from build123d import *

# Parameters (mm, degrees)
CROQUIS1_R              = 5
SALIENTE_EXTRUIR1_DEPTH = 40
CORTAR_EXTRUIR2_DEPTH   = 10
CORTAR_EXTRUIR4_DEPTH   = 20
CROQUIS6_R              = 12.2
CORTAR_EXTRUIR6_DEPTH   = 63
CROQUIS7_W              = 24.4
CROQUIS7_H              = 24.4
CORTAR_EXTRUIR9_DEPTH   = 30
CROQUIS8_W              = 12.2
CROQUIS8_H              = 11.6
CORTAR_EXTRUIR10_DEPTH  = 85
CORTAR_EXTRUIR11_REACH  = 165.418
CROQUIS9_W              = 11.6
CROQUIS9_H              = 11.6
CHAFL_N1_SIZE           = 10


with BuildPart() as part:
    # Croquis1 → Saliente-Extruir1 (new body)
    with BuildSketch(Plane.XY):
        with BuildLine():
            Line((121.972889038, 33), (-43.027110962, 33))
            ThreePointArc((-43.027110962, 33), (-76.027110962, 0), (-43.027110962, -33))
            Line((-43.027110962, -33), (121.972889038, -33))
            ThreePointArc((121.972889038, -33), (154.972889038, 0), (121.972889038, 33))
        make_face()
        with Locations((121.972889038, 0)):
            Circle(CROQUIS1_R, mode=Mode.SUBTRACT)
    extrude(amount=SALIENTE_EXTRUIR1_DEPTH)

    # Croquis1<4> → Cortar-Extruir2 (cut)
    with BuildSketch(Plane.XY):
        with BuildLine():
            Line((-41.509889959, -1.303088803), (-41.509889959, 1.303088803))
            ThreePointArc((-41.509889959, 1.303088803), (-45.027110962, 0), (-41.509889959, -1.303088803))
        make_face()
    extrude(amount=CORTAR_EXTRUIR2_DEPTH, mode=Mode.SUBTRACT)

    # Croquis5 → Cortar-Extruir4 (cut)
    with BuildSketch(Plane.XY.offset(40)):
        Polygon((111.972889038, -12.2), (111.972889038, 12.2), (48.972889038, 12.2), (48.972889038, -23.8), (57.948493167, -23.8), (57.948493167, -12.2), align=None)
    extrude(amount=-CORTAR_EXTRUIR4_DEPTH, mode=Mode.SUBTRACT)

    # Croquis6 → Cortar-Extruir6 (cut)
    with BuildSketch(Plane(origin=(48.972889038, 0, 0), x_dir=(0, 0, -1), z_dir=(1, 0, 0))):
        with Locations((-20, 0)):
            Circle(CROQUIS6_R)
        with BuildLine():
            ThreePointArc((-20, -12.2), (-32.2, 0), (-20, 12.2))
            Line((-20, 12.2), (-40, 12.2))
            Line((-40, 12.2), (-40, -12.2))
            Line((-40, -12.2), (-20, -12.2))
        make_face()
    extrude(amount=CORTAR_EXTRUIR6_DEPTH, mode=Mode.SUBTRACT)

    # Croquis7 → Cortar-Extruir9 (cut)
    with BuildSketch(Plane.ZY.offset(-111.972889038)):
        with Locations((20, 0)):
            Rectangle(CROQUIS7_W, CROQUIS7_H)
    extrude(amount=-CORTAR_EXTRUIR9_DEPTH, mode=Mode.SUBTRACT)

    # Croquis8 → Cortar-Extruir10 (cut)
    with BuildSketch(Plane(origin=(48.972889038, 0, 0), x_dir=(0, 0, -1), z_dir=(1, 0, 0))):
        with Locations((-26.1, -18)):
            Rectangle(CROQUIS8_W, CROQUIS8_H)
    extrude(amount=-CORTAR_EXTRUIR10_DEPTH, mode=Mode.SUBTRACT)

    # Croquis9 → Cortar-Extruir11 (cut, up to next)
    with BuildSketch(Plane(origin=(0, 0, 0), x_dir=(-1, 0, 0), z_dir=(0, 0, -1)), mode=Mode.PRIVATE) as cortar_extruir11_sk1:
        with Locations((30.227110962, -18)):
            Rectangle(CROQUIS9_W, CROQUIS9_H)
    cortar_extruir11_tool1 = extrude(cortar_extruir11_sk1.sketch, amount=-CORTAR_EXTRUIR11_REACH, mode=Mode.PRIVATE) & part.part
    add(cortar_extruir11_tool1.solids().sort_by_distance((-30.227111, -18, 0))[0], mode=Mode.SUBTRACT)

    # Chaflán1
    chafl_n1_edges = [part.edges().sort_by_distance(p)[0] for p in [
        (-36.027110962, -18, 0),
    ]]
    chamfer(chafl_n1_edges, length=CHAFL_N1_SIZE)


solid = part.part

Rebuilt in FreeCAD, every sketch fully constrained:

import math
import FreeCAD as App
import Part
import Sketcher


def edges_at(feature, points):
    """Names of the edges that pass closest to the given points."""
    edges = feature.Shape.Edges
    near = lambda p: min(range(len(edges)), key=lambda i: edges[i].distToShape(Part.Vertex(*p))[0])
    return sorted({f"Edge{near(p) + 1}" for p in points})


def add_polygon(sketch, points):
    """Adds a closed chain of lines whose ends are joined by coincident constraints."""
    first, n = sketch.GeometryCount, len(points)
    for a, b in zip(points, points[1:] + points[:1]):
        sketch.addGeometry(Part.LineSegment(App.Vector(*a, 0), App.Vector(*b, 0)), False)
    for i in range(n):
        sketch.addConstraint(Sketcher.Constraint("Coincident", first + i, 2, first + (i + 1) % n, 1))

doc = App.newDocument("Part")
params = doc.addObject("Spreadsheet::Sheet", "Params")
for row, (alias, value) in enumerate([
    ("sketch1_diameter", "10 mm"),
    ("sketch1_radius", "33 mm"),
    ("sketch1_width", "165 mm"),
    ("pad1_length", "40 mm"),
    ("sketch2_radius", "2 mm"),
    ("pocket1_length", "10 mm"),
    ("sketch3_width", "63 mm"),
    ("sketch3_height", "36 mm"),
    ("sketch3_height2", "24.4 mm"),
    ("pocket2_length", "20 mm"),
    ("sketch4_radius", "12.2 mm"),
    ("sketch4_height", "20 mm"),
    ("pocket3_length", "63 mm"),
    ("sketch5_width", "24.4 mm"),
    ("pocket4_length", "30 mm"),
    ("sketch6_width", "11.6 mm"),
    ("sketch6_height", "12.2 mm"),
    ("pocket5_length", "85 mm"),
    ("sketch7_width", "11.6 mm"),
    ("chamfer_size", "10 mm"),
], start=1):
    params.set(f"A{row}", alias)
    params.set(f"B{row}", "=" + value)
    params.setAlias(f"B{row}", alias)

body = doc.addObject("PartDesign::Body", "Body")

# Sketch on XY plane
sketch1 = doc.addObject("Sketcher::SketchObject", "Sketch")
body.addObject(sketch1)
sketch1.AttachmentSupport = (doc.XY_Plane, [""])
sketch1.MapMode = "FlatFace"
sketch1.addGeometry([
    Part.LineSegment(App.Vector(122, 33, 0), App.Vector(-43, 33, 0)),  # 0
    Part.ArcOfCircle(Part.Circle(App.Vector(-43, 0, 0), App.Vector(0, 0, 1), 33), math.radians(90), math.radians(270)),  # 1
    Part.LineSegment(App.Vector(-43, -33, 0), App.Vector(122, -33, 0)),  # 2
    Part.ArcOfCircle(Part.Circle(App.Vector(122, 0, 0), App.Vector(0, 0, 1), 33), math.radians(-90), math.radians(90)),  # 3
    Part.Circle(App.Vector(122, 0, 0), App.Vector(0, 0, 1), 5),  # 4
], False)
sketch1.addConstraint([
    Sketcher.Constraint("Tangent", 0, 2, 1, 1),
    Sketcher.Constraint("Tangent", 1, 2, 2, 1),
    Sketcher.Constraint("Tangent", 2, 2, 3, 1),
    Sketcher.Constraint("Tangent", 3, 2, 0, 1),
    Sketcher.Constraint("Horizontal", 0),
    Sketcher.Constraint("Horizontal", 2),
    Sketcher.Constraint("Coincident", 4, 3, 3, 3),
    Sketcher.Constraint("PointOnObject", 1, 3, -1),
    Sketcher.Constraint("Diameter", 4, 10.0),
    Sketcher.Constraint("Radius", 1, 33.0),
    Sketcher.Constraint("DistanceX", 0, 2, 0, 1, 165.0),
    Sketcher.Constraint("DistanceX", 1, 3, -1, 1, 43.027111),
])
sketch1.setExpression("Constraints[8]", "Params.sketch1_diameter")
sketch1.setExpression("Constraints[9]", "Params.sketch1_radius")
sketch1.setExpression("Constraints[10]", "Params.sketch1_width")
pad1 = doc.addObject("PartDesign::Pad", "Pad")
body.addObject(pad1)
pad1.Profile = sketch1
pad1.setExpression("Length", "Params.pad1_length")

# Sketch on XY plane
sketch2 = doc.addObject("Sketcher::SketchObject", "Sketch001")
body.addObject(sketch2)
sketch2.AttachmentSupport = (doc.XY_Plane, [""])
sketch2.MapMode = "FlatFace"
sketch2.addGeometry([
    Part.LineSegment(App.Vector(-41.5, -1.3, 0), App.Vector(-41.5, 1.3, 0)),
    Part.ArcOfCircle(Part.Circle(App.Vector(-43, 0, 0), App.Vector(0, 0, 1), 2), math.radians(41), math.radians(319)),
], False)
sketch2.addConstraint([
    Sketcher.Constraint("Coincident", 0, 1, 1, 2),
    Sketcher.Constraint("Coincident", 1, 1, 0, 2),
    Sketcher.Constraint("Vertical", 0),
    Sketcher.Constraint("PointOnObject", 1, 3, -1),
    Sketcher.Constraint("Radius", 1, 2.0),
    Sketcher.Constraint("DistanceY", 0, 1, 0, 2, 2.606178),
    Sketcher.Constraint("DistanceX", 1, 3, -1, 1, 43.027111),
])
sketch2.setExpression("Constraints[4]", "Params.sketch2_radius")
pocket1 = doc.addObject("PartDesign::Pocket", "Pocket")
body.addObject(pocket1)
pocket1.Profile = sketch2
pocket1.setExpression("Length", "Params.pocket1_length")
pocket1.Reversed = True

# Sketch on XY plane
sketch3 = doc.addObject("Sketcher::SketchObject", "Sketch002")
body.addObject(sketch3)
sketch3.AttachmentSupport = (doc.XY_Plane, [""])
sketch3.MapMode = "FlatFace"
sketch3.AttachmentOffset = App.Placement(App.Vector(0, 0, 40), App.Rotation())
add_polygon(sketch3, [(112, -12), (112, 12), (49, 12), (49, -24), (58, -24), (58, -12)])  # lines 0-5
sketch3.addConstraint([
    Sketcher.Constraint("Vertical", 0),
    Sketcher.Constraint("Horizontal", 1),
    Sketcher.Constraint("Vertical", 2),
    Sketcher.Constraint("Horizontal", 3),
    Sketcher.Constraint("Vertical", 4),
    Sketcher.Constraint("Horizontal", 5),
    Sketcher.Constraint("DistanceX", 1, 2, 1, 1, 63.0),
    Sketcher.Constraint("DistanceY", 2, 2, 2, 1, 36.0),
    Sketcher.Constraint("DistanceY", 0, 1, 0, 2, 24.4),
    Sketcher.Constraint("DistanceY", -1, 1, 0, 2, 12.2),
    Sketcher.Constraint("DistanceX", 3, 1, 3, 2, 8.975604),
    Sketcher.Constraint("DistanceX", -1, 1, 0, 2, 111.972889),
])
sketch3.setExpression("Constraints[12]", "Params.sketch3_width")
sketch3.setExpression("Constraints[13]", "Params.sketch3_height")
sketch3.setExpression("Constraints[14]", "Params.sketch3_height2")
pocket2 = doc.addObject("PartDesign::Pocket", "Pocket001")
body.addObject(pocket2)
pocket2.Profile = sketch3
pocket2.setExpression("Length", "Params.pocket2_length")

# Sketch on YZ plane
sketch4 = doc.addObject("Sketcher::SketchObject", "Sketch003")
body.addObject(sketch4)
sketch4.AttachmentSupport = (doc.YZ_Plane, [""])
sketch4.MapMode = "FlatFace"
sketch4.AttachmentOffset = App.Placement(App.Vector(0, 0, 48.972889), App.Rotation())
sketch4.addGeometry([
    Part.LineSegment(App.Vector(12, 20, 0), App.Vector(12, 40, 0)),
    Part.LineSegment(App.Vector(12, 40, 0), App.Vector(-12, 40, 0)),
    Part.LineSegment(App.Vector(-12, 40, 0), App.Vector(-12, 20, 0)),
    Part.ArcOfCircle(Part.Circle(App.Vector(0, 20, 0), App.Vector(0, 0, 1), 12), math.radians(180), math.radians(360)),
], False)
sketch4.addConstraint([
    Sketcher.Constraint("Coincident", 0, 2, 1, 1),
    Sketcher.Constraint("Coincident", 1, 2, 2, 1),
    Sketcher.Constraint("Tangent", 2, 2, 3, 1),
    Sketcher.Constraint("Tangent", 3, 2, 0, 1),
    Sketcher.Constraint("Vertical", 0),
    Sketcher.Constraint("Horizontal", 1),
    Sketcher.Constraint("Vertical", 2),
    Sketcher.Constraint("PointOnObject", 3, 3, -2),
    Sketcher.Constraint("Radius", 3, 12.2),
    Sketcher.Constraint("DistanceY", 0, 1, 0, 2, 20.0),
    Sketcher.Constraint("DistanceY", -1, 1, 3, 3, 20.0),
])
sketch4.setExpression("Constraints[8]", "Params.sketch4_radius")
sketch4.setExpression("Constraints[9]", "Params.sketch4_height")
pocket3 = doc.addObject("PartDesign::Pocket", "Pocket002")
body.addObject(pocket3)
pocket3.Profile = sketch4
pocket3.setExpression("Length", "Params.pocket3_length")
pocket3.Reversed = True

# Sketch on YZ plane
sketch5 = doc.addObject("Sketcher::SketchObject", "Sketch004")
body.addObject(sketch5)
sketch5.AttachmentSupport = (doc.YZ_Plane, [""])
sketch5.MapMode = "FlatFace"
sketch5.AttachmentOffset = App.Placement(App.Vector(0, 0, 111.972889), App.Rotation())
add_polygon(sketch5, [(12, 8), (-12, 8), (-12, 32), (12, 32)])  # lines 0-3
sketch5.addConstraint([
    Sketcher.Constraint("Horizontal", 0),
    Sketcher.Constraint("Vertical", 1),
    Sketcher.Constraint("Horizontal", 2),
    Sketcher.Constraint("Vertical", 3),
    Sketcher.Constraint("Equal", 2, 1),
    Sketcher.Constraint("DistanceX", 0, 2, 0, 1, 24.4),
    Sketcher.Constraint("DistanceX", 0, 2, -1, 1, 12.2),
    Sketcher.Constraint("DistanceY", -1, 1, 0, 2, 7.8),
])
sketch5.setExpression("Constraints[9]", "Params.sketch5_width")
pocket4 = doc.addObject("PartDesign::Pocket", "Pocket003")
body.addObject(pocket4)
pocket4.Profile = sketch5
pocket4.setExpression("Length", "Params.pocket4_length")
pocket4.Reversed = True

# Sketch on YZ plane
sketch6 = doc.addObject("Sketcher::SketchObject", "Sketch005")
body.addObject(sketch6)
sketch6.AttachmentSupport = (doc.YZ_Plane, [""])
sketch6.MapMode = "FlatFace"
sketch6.AttachmentOffset = App.Placement(App.Vector(0, 0, 48.972889), App.Rotation())
add_polygon(sketch6, [(-12, 32), (-24, 32), (-24, 20), (-12, 20)])  # lines 0-3
sketch6.addConstraint([
    Sketcher.Constraint("Horizontal", 0),
    Sketcher.Constraint("Vertical", 1),
    Sketcher.Constraint("Horizontal", 2),
    Sketcher.Constraint("Vertical", 3),
    Sketcher.Constraint("DistanceX", 0, 2, 0, 1, 11.6),
    Sketcher.Constraint("DistanceY", 1, 2, 1, 1, 12.2),
    Sketcher.Constraint("DistanceY", -1, 1, 1, 2, 20.0),
    Sketcher.Constraint("DistanceX", 0, 2, -1, 1, 23.8),
])
sketch6.setExpression("Constraints[8]", "Params.sketch6_width")
sketch6.setExpression("Constraints[9]", "Params.sketch6_height")
pocket5 = doc.addObject("PartDesign::Pocket", "Pocket004")
body.addObject(pocket5)
pocket5.Profile = sketch6
pocket5.setExpression("Length", "Params.pocket5_length")

# Sketch on XY plane
sketch7 = doc.addObject("Sketcher::SketchObject", "Sketch006")
body.addObject(sketch7)
sketch7.AttachmentSupport = (doc.XY_Plane, [""])
sketch7.MapMode = "FlatFace"
add_polygon(sketch7, [(-24, -12), (-24, -24), (-36, -24), (-36, -12)])  # lines 0-3
sketch7.addConstraint([
    Sketcher.Constraint("Vertical", 0),
    Sketcher.Constraint("Horizontal", 1),
    Sketcher.Constraint("Vertical", 2),
    Sketcher.Constraint("Horizontal", 3),
    Sketcher.Constraint("Equal", 3, 0),
    Sketcher.Constraint("DistanceX", 1, 2, 1, 1, 11.6),
    Sketcher.Constraint("DistanceY", 0, 2, -1, 1, 23.8),
    Sketcher.Constraint("DistanceX", 0, 2, -1, 1, 24.427111),
])
sketch7.setExpression("Constraints[9]", "Params.sketch7_width")
pocket6 = doc.addObject("PartDesign::Pocket", "Pocket005")
body.addObject(pocket6)
pocket6.Profile = sketch7
pocket6.Type = "UpToFirst"
pocket6.Reversed = True
doc.recompute()

chamfer = doc.addObject("PartDesign::Chamfer", "Chamfer")
body.addObject(chamfer)
chamfer.Base = (pocket6, edges_at(pocket6, [(-36.027, -18, 0)]))
chamfer.setExpression("Size", "Params.chamfer_size")

doc.recompute()
